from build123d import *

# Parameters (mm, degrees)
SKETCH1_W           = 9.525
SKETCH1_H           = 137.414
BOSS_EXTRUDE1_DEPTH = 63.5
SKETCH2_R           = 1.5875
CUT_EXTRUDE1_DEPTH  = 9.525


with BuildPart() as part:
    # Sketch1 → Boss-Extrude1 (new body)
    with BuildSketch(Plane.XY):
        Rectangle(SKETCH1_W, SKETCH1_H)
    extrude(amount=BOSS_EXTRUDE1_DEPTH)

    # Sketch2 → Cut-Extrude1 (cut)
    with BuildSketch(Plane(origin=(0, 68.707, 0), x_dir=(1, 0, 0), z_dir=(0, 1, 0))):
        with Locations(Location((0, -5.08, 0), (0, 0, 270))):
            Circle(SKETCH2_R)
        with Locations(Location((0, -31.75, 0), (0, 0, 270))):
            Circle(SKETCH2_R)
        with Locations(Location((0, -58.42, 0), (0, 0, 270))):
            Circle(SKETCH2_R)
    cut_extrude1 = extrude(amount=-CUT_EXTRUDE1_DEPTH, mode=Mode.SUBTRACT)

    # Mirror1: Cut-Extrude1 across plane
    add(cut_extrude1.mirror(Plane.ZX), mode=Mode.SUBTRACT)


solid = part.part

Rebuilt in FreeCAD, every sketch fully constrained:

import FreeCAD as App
import Part
import Sketcher
Q = App.Units.Quantity


def add_polygon(sketch, points):
    """Adds a closed chain of lines whose ends are joined by coincident constraints."""
    first, n = sketch.GeometryCount, len(points)
    for a, b in zip(points, points[1:] + points[:1]):
        sketch.addGeometry(Part.LineSegment(App.Vector(*a, 0), App.Vector(*b, 0)), False)
    for i in range(n):
        sketch.addConstraint(Sketcher.Constraint("Coincident", first + i, 2, first + (i + 1) % n, 1))

doc = App.newDocument("Part")
body = doc.addObject("PartDesign::Body", "Body")

sketch1 = body.newObject("Sketcher::SketchObject", "Sketch")
sketch1.AttachmentSupport = (doc.getObject("XY_Plane"), [""])
sketch1.MapMode = "FlatFace"
add_polygon(sketch1, [(-5, 69), (-5, -69), (5, -69), (5, 69)])
sketch1.addConstraint(Sketcher.Constraint("Vertical", 0))
sketch1.addConstraint(Sketcher.Constraint("Horizontal", 1))
sketch1.addConstraint(Sketcher.Constraint("Vertical", 2))
sketch1.addConstraint(Sketcher.Constraint("Horizontal", 3))
sketch1.addConstraint(Sketcher.Constraint("Symmetric", 0, 2, 2, 2, -1, 1))
sketch1.addConstraint(Sketcher.Constraint("DistanceY", 0, 2, 0, 1, Q("5.41 in")))
sketch1.addConstraint(Sketcher.Constraint("DistanceX", 1, 1, 1, 2, Q("0.375 in")))
pad1 = body.newObject("PartDesign::Pad", "Pad")
pad1.Profile = sketch1
pad1.Length = Q("2.5 in")

sketch2 = body.newObject("Sketcher::SketchObject", "Sketch001")
sketch2.AttachmentSupport = (doc.getObject("XZ_Plane"), [""])
sketch2.MapMode = "FlatFace"
sketch2.AttachmentOffset = App.Placement(App.Vector(0, 0, -2.705 * 25.4), App.Rotation())
sketch2.addGeometry(Part.Circle(App.Vector(0, 5.1, 0), App.Vector(0, 0, 1), 1.6), False)
sketch2.addGeometry(Part.Circle(App.Vector(0, 31.8, 0), App.Vector(0, 0, 1), 1.6), False)
sketch2.addGeometry(Part.Circle(App.Vector(0, 58.4, 0), App.Vector(0, 0, 1), 1.6), False)
sketch2.addConstraint(Sketcher.Constraint("Equal", 0, 1))
sketch2.addConstraint(Sketcher.Constraint("Equal", 1, 2))
sketch2.addConstraint(Sketcher.Constraint("PointOnObject", 0, 3, -2))
sketch2.addConstraint(Sketcher.Constraint("PointOnObject", 1, 3, -2))
sketch2.addConstraint(Sketcher.Constraint("PointOnObject", 2, 3, -2))
sketch2.addConstraint(Sketcher.Constraint("Diameter", 0, Q("0.125 in")))
sketch2.addConstraint(Sketcher.Constraint("DistanceY", -1, 1, 0, 3, Q("0.2 in")))
sketch2.addConstraint(Sketcher.Constraint("DistanceY", -1, 1, 2, 3, Q("2.3 in")))
sketch2.addConstraint(Sketcher.Constraint("DistanceY", -1, 1, 1, 3, Q("1.25 in")))
pocket1 = body.newObject("PartDesign::Pocket", "Pocket")
pocket1.Profile = sketch2
pocket1.Length = Q("0.375 in")
pocket1.Reversed = True
doc.recompute()

mirrored = body.newObject("PartDesign::Mirrored", "Mirrored")
mirrored.Originals = [pocket1]
mirrored.MirrorPlane = (doc.getObject("XZ_Plane"), [""])
body.Tip = mirrored

doc.recompute()
